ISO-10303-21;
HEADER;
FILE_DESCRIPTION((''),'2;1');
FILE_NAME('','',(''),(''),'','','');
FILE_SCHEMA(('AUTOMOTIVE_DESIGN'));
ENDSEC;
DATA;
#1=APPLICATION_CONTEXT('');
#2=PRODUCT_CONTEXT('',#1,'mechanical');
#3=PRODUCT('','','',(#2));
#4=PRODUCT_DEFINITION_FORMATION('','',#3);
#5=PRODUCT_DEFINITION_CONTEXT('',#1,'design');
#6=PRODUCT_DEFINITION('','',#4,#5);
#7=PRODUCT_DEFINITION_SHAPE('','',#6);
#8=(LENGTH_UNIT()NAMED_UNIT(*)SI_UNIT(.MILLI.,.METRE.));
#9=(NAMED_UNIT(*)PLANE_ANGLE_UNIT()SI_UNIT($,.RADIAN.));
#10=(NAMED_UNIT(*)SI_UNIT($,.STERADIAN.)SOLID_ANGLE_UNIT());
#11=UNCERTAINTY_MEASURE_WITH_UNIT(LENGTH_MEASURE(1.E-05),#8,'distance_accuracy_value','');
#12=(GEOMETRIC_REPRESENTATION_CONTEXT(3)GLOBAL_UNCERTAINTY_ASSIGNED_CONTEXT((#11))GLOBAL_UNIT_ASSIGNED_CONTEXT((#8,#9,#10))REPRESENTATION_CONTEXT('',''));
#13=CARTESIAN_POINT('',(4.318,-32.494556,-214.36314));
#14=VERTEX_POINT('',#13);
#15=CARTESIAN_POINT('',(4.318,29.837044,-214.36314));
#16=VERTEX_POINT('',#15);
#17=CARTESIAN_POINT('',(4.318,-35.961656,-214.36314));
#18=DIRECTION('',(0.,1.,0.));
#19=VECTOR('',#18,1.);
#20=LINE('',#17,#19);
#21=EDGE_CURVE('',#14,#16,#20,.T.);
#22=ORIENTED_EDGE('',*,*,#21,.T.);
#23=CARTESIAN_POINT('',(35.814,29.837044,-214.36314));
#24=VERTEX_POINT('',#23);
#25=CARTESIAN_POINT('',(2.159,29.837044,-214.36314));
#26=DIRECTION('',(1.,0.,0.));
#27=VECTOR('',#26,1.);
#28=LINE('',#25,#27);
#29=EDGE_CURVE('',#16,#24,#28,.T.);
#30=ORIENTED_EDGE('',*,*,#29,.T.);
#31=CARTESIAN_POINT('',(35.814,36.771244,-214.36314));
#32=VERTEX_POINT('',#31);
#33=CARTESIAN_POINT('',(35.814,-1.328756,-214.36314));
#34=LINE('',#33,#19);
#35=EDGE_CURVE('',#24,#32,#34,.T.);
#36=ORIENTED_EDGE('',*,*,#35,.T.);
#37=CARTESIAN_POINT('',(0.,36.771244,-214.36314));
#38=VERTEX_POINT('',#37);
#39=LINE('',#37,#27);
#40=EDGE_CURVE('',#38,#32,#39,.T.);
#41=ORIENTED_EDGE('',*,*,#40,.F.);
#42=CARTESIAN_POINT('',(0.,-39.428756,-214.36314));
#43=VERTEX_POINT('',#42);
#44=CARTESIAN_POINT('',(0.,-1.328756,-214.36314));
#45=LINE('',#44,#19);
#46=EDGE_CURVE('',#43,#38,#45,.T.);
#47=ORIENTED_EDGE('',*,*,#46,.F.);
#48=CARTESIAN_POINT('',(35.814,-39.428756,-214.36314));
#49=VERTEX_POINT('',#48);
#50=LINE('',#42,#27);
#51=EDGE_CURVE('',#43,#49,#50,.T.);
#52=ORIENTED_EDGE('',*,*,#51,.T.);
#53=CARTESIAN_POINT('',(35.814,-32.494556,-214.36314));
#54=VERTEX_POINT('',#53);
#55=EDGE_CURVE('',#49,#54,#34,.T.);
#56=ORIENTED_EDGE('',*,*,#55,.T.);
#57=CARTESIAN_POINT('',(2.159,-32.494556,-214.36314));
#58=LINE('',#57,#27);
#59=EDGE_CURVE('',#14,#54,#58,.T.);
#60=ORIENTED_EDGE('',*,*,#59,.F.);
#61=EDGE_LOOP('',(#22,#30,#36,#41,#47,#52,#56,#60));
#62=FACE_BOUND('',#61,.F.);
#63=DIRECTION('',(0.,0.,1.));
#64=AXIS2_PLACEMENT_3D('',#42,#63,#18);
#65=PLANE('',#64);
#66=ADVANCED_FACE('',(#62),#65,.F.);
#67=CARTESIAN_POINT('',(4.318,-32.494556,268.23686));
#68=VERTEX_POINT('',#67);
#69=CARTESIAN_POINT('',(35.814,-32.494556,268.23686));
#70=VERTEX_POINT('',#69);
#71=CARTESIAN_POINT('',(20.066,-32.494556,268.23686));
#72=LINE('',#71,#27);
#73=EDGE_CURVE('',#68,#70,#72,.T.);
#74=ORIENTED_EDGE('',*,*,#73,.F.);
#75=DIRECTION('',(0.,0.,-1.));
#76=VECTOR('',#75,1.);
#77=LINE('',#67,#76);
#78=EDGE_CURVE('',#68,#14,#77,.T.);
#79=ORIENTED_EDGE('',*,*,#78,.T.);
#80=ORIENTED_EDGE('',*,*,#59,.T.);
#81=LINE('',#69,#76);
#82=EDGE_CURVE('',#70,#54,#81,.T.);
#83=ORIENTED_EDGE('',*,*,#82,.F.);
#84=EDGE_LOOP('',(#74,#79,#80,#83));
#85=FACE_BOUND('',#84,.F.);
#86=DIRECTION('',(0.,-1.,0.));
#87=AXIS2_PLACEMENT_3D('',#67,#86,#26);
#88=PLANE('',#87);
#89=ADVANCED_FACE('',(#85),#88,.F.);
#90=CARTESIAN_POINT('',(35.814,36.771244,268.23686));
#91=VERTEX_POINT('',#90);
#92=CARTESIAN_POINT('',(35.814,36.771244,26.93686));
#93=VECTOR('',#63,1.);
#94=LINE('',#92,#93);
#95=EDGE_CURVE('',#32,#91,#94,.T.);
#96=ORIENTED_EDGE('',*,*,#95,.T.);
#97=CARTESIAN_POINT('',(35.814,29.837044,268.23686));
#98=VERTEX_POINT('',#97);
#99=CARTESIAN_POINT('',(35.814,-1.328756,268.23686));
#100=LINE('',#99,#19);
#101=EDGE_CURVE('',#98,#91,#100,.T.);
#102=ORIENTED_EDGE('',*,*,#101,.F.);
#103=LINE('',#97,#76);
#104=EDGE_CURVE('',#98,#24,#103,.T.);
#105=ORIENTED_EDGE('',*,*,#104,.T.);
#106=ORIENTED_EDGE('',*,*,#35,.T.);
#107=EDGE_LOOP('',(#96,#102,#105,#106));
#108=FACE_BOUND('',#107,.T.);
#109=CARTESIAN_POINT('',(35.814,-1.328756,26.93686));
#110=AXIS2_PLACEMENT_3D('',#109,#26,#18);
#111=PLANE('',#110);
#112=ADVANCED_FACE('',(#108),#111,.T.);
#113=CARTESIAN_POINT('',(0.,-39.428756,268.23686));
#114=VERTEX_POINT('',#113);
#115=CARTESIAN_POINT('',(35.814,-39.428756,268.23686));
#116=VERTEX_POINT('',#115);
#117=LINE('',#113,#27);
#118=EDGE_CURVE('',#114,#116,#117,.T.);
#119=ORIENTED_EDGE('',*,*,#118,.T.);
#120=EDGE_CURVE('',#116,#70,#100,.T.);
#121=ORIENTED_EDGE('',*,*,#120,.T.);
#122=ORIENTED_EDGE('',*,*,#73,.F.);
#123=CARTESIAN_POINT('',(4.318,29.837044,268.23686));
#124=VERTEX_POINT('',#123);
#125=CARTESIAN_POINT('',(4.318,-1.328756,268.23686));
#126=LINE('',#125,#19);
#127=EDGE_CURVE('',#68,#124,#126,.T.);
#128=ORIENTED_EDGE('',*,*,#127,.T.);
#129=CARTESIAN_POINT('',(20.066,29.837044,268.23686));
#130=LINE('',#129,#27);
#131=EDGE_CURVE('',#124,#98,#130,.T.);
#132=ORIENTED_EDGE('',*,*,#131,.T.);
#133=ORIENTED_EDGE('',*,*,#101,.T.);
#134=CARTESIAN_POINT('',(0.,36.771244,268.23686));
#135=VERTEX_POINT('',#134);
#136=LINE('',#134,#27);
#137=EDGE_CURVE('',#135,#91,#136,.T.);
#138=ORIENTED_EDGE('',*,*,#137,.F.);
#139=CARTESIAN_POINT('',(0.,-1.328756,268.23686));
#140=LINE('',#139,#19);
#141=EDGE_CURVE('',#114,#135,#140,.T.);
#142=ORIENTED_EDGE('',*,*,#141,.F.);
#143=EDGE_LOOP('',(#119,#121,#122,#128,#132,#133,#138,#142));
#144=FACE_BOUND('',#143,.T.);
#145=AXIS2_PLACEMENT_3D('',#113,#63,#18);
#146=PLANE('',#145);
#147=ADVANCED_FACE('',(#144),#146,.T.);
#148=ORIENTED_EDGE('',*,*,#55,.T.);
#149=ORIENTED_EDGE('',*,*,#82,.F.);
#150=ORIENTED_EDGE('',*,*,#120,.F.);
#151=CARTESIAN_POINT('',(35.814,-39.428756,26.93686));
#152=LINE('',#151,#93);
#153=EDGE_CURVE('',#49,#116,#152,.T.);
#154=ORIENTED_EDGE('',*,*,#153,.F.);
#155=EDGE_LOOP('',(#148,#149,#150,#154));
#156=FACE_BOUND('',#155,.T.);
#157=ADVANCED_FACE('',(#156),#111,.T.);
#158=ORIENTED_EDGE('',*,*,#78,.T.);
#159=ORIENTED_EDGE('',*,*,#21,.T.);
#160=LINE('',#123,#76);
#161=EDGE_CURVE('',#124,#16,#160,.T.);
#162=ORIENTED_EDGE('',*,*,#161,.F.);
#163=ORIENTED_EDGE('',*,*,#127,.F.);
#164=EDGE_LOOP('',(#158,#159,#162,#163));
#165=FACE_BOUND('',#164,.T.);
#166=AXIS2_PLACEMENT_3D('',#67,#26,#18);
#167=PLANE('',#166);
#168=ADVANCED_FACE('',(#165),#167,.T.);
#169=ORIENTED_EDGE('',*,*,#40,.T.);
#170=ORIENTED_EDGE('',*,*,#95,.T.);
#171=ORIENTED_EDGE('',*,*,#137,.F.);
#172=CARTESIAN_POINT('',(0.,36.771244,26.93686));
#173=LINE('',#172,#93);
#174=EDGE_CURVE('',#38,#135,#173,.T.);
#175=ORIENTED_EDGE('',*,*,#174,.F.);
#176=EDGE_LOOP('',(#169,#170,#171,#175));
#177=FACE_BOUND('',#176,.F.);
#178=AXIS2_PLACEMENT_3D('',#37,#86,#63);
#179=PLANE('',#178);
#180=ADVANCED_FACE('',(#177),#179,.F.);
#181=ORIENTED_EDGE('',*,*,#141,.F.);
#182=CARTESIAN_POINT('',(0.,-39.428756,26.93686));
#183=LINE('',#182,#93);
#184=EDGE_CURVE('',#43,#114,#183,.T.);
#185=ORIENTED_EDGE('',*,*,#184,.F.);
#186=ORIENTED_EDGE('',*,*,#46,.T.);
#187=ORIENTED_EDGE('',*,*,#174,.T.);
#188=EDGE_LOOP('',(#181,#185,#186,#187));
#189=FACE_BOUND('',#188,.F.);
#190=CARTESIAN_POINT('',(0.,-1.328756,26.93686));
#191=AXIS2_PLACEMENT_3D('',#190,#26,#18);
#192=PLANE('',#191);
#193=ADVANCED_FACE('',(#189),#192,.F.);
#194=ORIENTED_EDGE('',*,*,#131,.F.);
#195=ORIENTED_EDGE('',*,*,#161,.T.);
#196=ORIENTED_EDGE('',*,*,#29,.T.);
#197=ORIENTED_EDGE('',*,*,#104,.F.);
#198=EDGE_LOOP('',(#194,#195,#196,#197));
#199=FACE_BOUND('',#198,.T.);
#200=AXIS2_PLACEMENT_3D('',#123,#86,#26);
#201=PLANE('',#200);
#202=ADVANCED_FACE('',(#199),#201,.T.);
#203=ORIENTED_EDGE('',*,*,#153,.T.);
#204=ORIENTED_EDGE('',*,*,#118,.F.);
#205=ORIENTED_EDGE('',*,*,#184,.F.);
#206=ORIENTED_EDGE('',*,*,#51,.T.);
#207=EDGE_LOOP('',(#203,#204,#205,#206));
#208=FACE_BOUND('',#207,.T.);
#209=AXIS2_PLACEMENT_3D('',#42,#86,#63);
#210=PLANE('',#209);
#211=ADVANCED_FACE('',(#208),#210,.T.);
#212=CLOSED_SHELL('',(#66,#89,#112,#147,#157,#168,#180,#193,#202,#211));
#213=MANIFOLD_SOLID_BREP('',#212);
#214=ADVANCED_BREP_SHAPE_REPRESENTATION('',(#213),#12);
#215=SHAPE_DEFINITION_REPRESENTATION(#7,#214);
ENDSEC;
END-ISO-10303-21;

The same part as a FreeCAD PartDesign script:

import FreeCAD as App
import Part
import Sketcher
Q = App.Units.Quantity

doc = App.newDocument("Part")
body = doc.addObject("PartDesign::Body", "Body")

# Sketch on YZ plane
sketch1 = doc.addObject("Sketcher::SketchObject", "Sketch")
body.addObject(sketch1)
sketch1.AttachmentSupport = (doc.YZ_Plane, [""])
sketch1.MapMode = "FlatFace"
sketch1.addGeometry([
    Part.LineSegment(App.Vector(-39, 268, 0), App.Vector(-39, -214, 0)),
    Part.LineSegment(App.Vector(-39, -214, 0), App.Vector(37, -214, 0)),
    Part.LineSegment(App.Vector(37, -214, 0), App.Vector(37, 268, 0)),
    Part.LineSegment(App.Vector(37, 268, 0), App.Vector(-39, 268, 0)),
], False)
sketch1.addConstraint([
    Sketcher.Constraint("Coincident", 0, 2, 1, 1),
    Sketcher.Constraint("Coincident", 1, 2, 2, 1),
    Sketcher.Constraint("Coincident", 2, 2, 3, 1),
    Sketcher.Constraint("Coincident", 3, 2, 0, 1),
    Sketcher.Constraint("Vertical", 0),
    Sketcher.Constraint("Horizontal", 1),
    Sketcher.Constraint("Vertical", 2),
    Sketcher.Constraint("Horizontal", 3),
    Sketcher.Constraint("DistanceX", 1, 1, 1, 2, Q("3 in")),
    Sketcher.Constraint("DistanceY", 0, 2, 0, 1, Q("19 in")),
    Sketcher.Constraint("DistanceY", 0, 2, -1, 1, Q("214.36314 mm")),
    Sketcher.Constraint("DistanceX", 0, 2, -1, 1, Q("39.428756 mm")),
])
pad1 = doc.addObject("PartDesign::Pad", "Pad")
body.addObject(pad1)
pad1.Profile = sketch1
pad1.Length = Q("1.41 in")

# Sketch on XY plane
sketch2 = doc.addObject("Sketcher::SketchObject", "Sketch001")
body.addObject(sketch2)
sketch2.AttachmentSupport = (doc.XY_Plane, [""])
sketch2.MapMode = "FlatFace"
sketch2.AttachmentOffset = App.Placement(App.Vector(0, 0, 268.23686), App.Rotation())
sketch2.addGeometry([
    Part.LineSegment(App.Vector(4, 30, 0), App.Vector(4, -32, 0)),
    Part.LineSegment(App.Vector(4, -32, 0), App.Vector(36, -32, 0)),
    Part.LineSegment(App.Vector(36, -32, 0), App.Vector(36, 30, 0)),
    Part.LineSegment(App.Vector(36, 30, 0), App.Vector(4, 30, 0)),
], False)
sketch2.addConstraint([
    Sketcher.Constraint("Coincident", 0, 2, 1, 1),
    Sketcher.Constraint("Coincident", 1, 2, 2, 1),
    Sketcher.Constraint("Coincident", 2, 2, 3, 1),
    Sketcher.Constraint("Coincident", 3, 2, 0, 1),
    Sketcher.Constraint("Vertical", 0),
    Sketcher.Constraint("Horizontal", 1),
    Sketcher.Constraint("Vertical", 2),
    Sketcher.Constraint("Horizontal", 3),
    Sketcher.Constraint("DistanceX", 1, 1, 1, 2, Q("1.24 in")),
    Sketcher.Constraint("DistanceY", 0, 2, 0, 1, Q("2.454 in")),
    Sketcher.Constraint("DistanceX", -1, 1, 0, 2, Q("0.17 in")),
    Sketcher.Constraint("DistanceY", 0, 2, -1, 1, Q("32.494556 mm")),
])
pocket1 = doc.addObject("PartDesign::Pocket", "Pocket")
body.addObject(pocket1)
pocket1.Profile = sketch2
pocket1.Type = "ThroughAll"

doc.recompute()
